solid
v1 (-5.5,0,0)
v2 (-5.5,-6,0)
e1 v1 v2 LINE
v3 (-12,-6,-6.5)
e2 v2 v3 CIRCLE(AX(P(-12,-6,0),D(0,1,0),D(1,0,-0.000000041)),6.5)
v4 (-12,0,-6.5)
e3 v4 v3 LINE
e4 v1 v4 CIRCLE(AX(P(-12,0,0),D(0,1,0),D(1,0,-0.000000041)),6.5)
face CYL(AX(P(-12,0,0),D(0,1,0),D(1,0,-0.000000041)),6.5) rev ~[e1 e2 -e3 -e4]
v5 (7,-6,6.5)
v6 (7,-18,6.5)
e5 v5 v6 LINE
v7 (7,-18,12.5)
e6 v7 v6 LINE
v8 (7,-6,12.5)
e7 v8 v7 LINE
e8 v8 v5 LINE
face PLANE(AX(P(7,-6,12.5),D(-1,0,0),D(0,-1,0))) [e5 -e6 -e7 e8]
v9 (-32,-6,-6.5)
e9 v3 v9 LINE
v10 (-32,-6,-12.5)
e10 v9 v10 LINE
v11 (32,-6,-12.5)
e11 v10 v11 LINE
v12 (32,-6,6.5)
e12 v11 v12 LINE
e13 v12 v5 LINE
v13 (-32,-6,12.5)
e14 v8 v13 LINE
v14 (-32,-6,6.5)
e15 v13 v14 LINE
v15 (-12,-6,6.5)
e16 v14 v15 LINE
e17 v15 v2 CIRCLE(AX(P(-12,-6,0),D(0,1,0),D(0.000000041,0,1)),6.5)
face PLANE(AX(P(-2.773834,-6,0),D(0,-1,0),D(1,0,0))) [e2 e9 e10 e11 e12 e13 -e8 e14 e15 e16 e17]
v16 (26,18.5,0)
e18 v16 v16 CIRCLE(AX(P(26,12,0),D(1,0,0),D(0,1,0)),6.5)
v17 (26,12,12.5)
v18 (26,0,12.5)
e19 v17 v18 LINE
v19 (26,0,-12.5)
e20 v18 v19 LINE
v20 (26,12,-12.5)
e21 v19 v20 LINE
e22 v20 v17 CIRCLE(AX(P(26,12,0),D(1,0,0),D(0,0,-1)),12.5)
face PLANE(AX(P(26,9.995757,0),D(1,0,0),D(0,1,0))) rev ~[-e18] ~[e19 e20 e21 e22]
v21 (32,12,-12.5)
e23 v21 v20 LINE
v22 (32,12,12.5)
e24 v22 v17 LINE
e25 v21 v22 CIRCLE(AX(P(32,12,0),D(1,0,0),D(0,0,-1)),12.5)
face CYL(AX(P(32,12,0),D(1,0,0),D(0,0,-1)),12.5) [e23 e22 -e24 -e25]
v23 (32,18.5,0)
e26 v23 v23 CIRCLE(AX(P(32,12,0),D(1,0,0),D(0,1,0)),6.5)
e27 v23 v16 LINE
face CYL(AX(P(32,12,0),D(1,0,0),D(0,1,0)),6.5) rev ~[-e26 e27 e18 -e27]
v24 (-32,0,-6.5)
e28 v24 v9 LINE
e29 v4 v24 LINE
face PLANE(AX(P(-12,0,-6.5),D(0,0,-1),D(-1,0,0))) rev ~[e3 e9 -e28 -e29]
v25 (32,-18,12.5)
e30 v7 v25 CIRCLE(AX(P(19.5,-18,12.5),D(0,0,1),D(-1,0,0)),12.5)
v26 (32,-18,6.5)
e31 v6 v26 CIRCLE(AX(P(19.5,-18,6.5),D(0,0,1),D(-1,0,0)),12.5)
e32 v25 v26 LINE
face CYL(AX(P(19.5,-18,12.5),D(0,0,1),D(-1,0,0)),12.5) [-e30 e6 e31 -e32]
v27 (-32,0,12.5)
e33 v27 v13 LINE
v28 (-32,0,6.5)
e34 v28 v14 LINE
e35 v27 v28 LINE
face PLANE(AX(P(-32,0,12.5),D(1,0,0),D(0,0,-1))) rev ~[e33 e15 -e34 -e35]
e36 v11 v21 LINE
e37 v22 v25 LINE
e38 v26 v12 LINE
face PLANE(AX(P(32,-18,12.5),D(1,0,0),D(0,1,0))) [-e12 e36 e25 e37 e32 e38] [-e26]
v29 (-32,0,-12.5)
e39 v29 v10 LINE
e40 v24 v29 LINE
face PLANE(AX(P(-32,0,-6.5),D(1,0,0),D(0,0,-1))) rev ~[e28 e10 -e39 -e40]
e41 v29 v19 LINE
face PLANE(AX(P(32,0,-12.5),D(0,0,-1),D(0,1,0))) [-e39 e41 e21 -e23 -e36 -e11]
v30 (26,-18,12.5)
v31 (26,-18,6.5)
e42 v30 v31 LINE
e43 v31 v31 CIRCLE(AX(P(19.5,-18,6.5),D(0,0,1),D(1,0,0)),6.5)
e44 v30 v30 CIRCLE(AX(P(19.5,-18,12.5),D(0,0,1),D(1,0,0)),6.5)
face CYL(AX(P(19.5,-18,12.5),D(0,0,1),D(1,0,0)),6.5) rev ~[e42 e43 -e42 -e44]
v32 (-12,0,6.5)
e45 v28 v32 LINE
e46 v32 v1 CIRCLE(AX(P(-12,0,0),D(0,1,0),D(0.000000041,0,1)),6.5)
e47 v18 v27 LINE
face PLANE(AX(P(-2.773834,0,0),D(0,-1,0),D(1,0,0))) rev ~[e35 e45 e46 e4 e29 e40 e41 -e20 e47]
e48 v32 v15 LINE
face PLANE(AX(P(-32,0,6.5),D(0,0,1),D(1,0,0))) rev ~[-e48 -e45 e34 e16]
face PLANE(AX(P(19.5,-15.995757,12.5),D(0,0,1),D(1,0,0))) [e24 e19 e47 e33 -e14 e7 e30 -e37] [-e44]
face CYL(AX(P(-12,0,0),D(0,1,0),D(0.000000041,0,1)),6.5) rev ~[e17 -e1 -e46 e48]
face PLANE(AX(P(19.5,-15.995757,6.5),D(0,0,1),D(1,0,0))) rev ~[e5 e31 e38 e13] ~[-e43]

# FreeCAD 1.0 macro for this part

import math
import FreeCAD as App
import Part
import Sketcher

V = App.Vector
Q = App.Units.Quantity

doc = App.newDocument("Part")
body = doc.addObject("PartDesign::Body", "Body")

sketch1 = body.newObject("Sketcher::SketchObject", "Sketch")
sketch1.AttachmentSupport = (doc.getObject("XZ_Plane"), [""])
sketch1.MapMode = "FlatFace"
sketch1.addGeometry(Part.LineSegment(V(32, -12, 0), V(32, 12, 0)), False)
sketch1.addGeometry(Part.LineSegment(V(32, 12, 0), V(-32, 12, 0)), False)
sketch1.addGeometry(Part.LineSegment(V(-32, 12, 0), V(-32, 6, 0)), False)
sketch1.addGeometry(Part.LineSegment(V(-32, 6, 0), V(-12, 6, 0)), False)
sketch1.addGeometry(Part.ArcOfCircle(Part.Circle(V(-12, 0, 0), V(0, 0, 1), 7), math.radians(0), math.radians(90)), False)
sketch1.addGeometry(Part.ArcOfCircle(Part.Circle(V(-12, 0, 0), V(0, 0, 1), 7), math.radians(-90), math.radians(0)), False)
sketch1.addGeometry(Part.LineSegment(V(-12, -6, 0), V(-32, -6, 0)), False)
sketch1.addGeometry(Part.LineSegment(V(-32, -6, 0), V(-32, -12, 0)), False)
sketch1.addGeometry(Part.LineSegment(V(-32, -12, 0), V(32, -12, 0)), False)
sketch1.addConstraint(Sketcher.Constraint("Coincident", 0, 2, 1, 1))
sketch1.addConstraint(Sketcher.Constraint("Coincident", 1, 2, 2, 1))
sketch1.addConstraint(Sketcher.Constraint("Coincident", 2, 2, 3, 1))
sketch1.addConstraint(Sketcher.Constraint("Tangent", 3, 2, 4, 2))
sketch1.addConstraint(Sketcher.Constraint("Tangent", 4, 1, 5, 2))
sketch1.addConstraint(Sketcher.Constraint("Tangent", 5, 1, 6, 1))
sketch1.addConstraint(Sketcher.Constraint("Coincident", 6, 2, 7, 1))
sketch1.addConstraint(Sketcher.Constraint("Coincident", 7, 2, 8, 1))
sketch1.addConstraint(Sketcher.Constraint("Coincident", 8, 2, 0, 1))
sketch1.addConstraint(Sketcher.Constraint("Vertical", 0))
sketch1.addConstraint(Sketcher.Constraint("Horizontal", 1))
sketch1.addConstraint(Sketcher.Constraint("Vertical", 2))
sketch1.addConstraint(Sketcher.Constraint("Horizontal", 3))
sketch1.addConstraint(Sketcher.Constraint("Horizontal", 6))
sketch1.addConstraint(Sketcher.Constraint("Vertical", 7))
sketch1.addConstraint(Sketcher.Constraint("Horizontal", 8))
sketch1.addConstraint(Sketcher.Constraint("Equal", 4, 5))
sketch1.addConstraint(Sketcher.Constraint("Symmetric", 0, 2, 7, 2, -1, 1))
sketch1.addConstraint(Sketcher.Constraint("Symmetric", 2, 2, 6, 2, -1))
sketch1.addConstraint(Sketcher.Constraint("PointOnObject", 4, 1, -1))
sketch1.addConstraint(Sketcher.Constraint("Radius", 4, Q("6.5 mm")))
sketch1.addConstraint(Sketcher.Constraint("DistanceX", 1, 2, 1, 1, Q("64 mm")))
sketch1.addConstraint(Sketcher.Constraint("DistanceX", 3, 1, 3, 2, Q("20 mm")))
sketch1.addConstraint(Sketcher.Constraint("DistanceY", 0, 1, 0, 2, Q("25 mm")))
pad1 = body.newObject("PartDesign::Pad", "Pad")
pad1.Profile = sketch1
pad1.Length = 6

sketch2 = body.newObject("Sketcher::SketchObject", "Sketch001")
sketch2.AttachmentSupport = (doc.getObject("YZ_Plane"), [""])
sketch2.MapMode = "FlatFace"
sketch2.AttachmentOffset = App.Placement(V(0, 0, 32), App.Rotation())
sketch2.addGeometry(Part.LineSegment(V(0, 12, 0), V(0, -12, 0)), False)
sketch2.addGeometry(Part.LineSegment(V(0, -12, 0), V(12, -12, 0)), False)
sketch2.addGeometry(Part.ArcOfCircle(Part.Circle(V(12, 0, 0), V(0, 0, 1), 12), math.radians(-90), math.radians(90)), False)
sketch2.addGeometry(Part.LineSegment(V(12, 12, 0), V(0, 12, 0)), False)
sketch2.addGeometry(Part.Circle(V(12, 0, 0), V(0, 0, 1), 6), False)
sketch2.addConstraint(Sketcher.Constraint("Coincident", 0, 2, 1, 1))
sketch2.addConstraint(Sketcher.Constraint("Tangent", 1, 2, 2, 1))
sketch2.addConstraint(Sketcher.Constraint("Tangent", 2, 2, 3, 1))
sketch2.addConstraint(Sketcher.Constraint("Coincident", 3, 2, 0, 1))
sketch2.addConstraint(Sketcher.Constraint("Vertical", 0))
sketch2.addConstraint(Sketcher.Constraint("Horizontal", 1))
sketch2.addConstraint(Sketcher.Constraint("Horizontal", 3))
sketch2.addConstraint(Sketcher.Constraint("Coincident", 4, 3, 2, 3))
sketch2.addConstraint(Sketcher.Constraint("Symmetric", 0, 2, 3, 2, -1, 1))
sketch2.addConstraint(Sketcher.Constraint("Diameter", 4, Q("13 mm")))
sketch2.addConstraint(Sketcher.Constraint("Radius", 2, Q("12.5 mm")))
sketch2.addConstraint(Sketcher.Constraint("DistanceX", 1, 1, 1, 2, Q("12 mm")))
pad2 = body.newObject("PartDesign::Pad", "Pad001")
pad2.Profile = sketch2
pad2.Length = 6
pad2.Reversed = True

sketch3 = body.newObject("Sketcher::SketchObject", "Sketch002")
sketch3.AttachmentSupport = (doc.getObject("XY_Plane"), [""])
sketch3.MapMode = "FlatFace"
sketch3.AttachmentOffset = App.Placement(V(0, 0, 12.5), App.Rotation())
sketch3.addGeometry(Part.LineSegment(V(32, -18, 0), V(32, -6, 0)), False)
sketch3.addGeometry(Part.LineSegment(V(32, -6, 0), V(7, -6, 0)), False)
sketch3.addGeometry(Part.LineSegment(V(7, -6, 0), V(7, -18, 0)), False)
sketch3.addGeometry(Part.ArcOfCircle(Part.Circle(V(20, -18, 0), V(0, 0, 1), 12), math.radians(180), math.radians(360)), False)
sketch3.addGeometry(Part.Circle(V(20, -18, 0), V(0, 0, 1), 6), False)
sketch3.addConstraint(Sketcher.Constraint("Coincident", 0, 2, 1, 1))
sketch3.addConstraint(Sketcher.Constraint("Coincident", 1, 2, 2, 1))
sketch3.addConstraint(Sketcher.Constraint("Tangent", 2, 2, 3, 1))
sketch3.addConstraint(Sketcher.Constraint("Tangent", 3, 2, 0, 1))
sketch3.addConstraint(Sketcher.Constraint("Vertical", 0))
sketch3.addConstraint(Sketcher.Constraint("Horizontal", 1))
sketch3.addConstraint(Sketcher.Constraint("Vertical", 2))
sketch3.addConstraint(Sketcher.Constraint("Coincident", 4, 3, 3, 3))
sketch3.addConstraint(Sketcher.Constraint("Diameter", 4, Q("13 mm")))
sketch3.addConstraint(Sketcher.Constraint("Radius", 3, Q("12.5 mm")))
sketch3.addConstraint(Sketcher.Constraint("DistanceY", 0, 1, 0, 2, Q("12 mm")))
sketch3.addConstraint(Sketcher.Constraint("DistanceY", 3, 3, -1, 1, Q("18 mm")))
sketch3.addConstraint(Sketcher.Constraint("DistanceX", -1, 1, 0, 2, Q("32 mm")))
pad3 = body.newObject("PartDesign::Pad", "Pad002")
pad3.Profile = sketch3
pad3.Length = 6
pad3.Reversed = True

doc.recompute()
